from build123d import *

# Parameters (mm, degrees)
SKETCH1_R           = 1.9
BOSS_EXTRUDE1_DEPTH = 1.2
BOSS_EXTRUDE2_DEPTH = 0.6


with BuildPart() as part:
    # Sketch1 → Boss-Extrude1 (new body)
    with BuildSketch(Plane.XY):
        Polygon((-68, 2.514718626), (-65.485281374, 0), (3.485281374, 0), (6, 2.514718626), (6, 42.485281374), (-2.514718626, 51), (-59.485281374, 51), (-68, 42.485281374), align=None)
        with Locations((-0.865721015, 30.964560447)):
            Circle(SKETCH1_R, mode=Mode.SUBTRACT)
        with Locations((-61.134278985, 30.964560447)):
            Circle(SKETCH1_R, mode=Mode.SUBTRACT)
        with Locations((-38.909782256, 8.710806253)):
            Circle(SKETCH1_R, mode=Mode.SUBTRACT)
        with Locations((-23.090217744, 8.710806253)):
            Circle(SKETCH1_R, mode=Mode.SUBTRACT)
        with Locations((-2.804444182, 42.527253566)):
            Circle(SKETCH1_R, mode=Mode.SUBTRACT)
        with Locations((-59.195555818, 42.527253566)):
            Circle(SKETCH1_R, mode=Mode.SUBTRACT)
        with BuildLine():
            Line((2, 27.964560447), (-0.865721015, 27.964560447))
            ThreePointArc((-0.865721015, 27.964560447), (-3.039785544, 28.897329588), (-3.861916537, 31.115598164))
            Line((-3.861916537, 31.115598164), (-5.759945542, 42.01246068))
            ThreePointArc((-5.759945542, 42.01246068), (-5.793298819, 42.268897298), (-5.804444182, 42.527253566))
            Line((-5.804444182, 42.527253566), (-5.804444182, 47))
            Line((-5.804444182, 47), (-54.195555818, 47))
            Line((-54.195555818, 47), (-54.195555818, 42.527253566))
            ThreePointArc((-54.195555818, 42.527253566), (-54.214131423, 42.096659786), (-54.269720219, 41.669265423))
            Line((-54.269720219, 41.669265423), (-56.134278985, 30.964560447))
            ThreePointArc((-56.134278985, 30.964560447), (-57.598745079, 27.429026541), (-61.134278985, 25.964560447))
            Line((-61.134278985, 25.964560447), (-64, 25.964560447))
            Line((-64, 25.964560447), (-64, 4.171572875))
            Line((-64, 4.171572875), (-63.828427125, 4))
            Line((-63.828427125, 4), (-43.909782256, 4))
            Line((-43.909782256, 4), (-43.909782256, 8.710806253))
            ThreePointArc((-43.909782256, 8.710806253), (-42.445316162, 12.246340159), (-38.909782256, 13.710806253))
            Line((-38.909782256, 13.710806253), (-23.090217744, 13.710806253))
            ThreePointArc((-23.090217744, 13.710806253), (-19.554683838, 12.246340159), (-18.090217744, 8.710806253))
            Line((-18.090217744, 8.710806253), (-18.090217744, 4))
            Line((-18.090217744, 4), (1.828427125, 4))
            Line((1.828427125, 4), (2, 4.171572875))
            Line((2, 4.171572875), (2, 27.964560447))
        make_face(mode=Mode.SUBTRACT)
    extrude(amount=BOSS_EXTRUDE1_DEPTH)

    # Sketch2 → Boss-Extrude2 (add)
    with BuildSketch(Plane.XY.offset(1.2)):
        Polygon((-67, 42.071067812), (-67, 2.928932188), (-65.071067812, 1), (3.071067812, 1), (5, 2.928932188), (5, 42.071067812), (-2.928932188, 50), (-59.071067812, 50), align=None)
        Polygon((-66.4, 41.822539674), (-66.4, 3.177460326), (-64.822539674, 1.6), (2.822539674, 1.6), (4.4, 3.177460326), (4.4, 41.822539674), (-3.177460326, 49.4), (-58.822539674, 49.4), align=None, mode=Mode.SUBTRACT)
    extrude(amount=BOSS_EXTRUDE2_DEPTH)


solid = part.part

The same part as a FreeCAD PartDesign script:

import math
import FreeCAD as App
import Part
import Sketcher

V = App.Vector
Q = App.Units.Quantity

doc = App.newDocument("Part")
body = doc.addObject("PartDesign::Body", "Body")

# Sketch on XY plane
sketch1 = doc.addObject("Sketcher::SketchObject", "Sketch")
body.addObject(sketch1)
sketch1.AttachmentSupport = (doc.XY_Plane, [""])
sketch1.MapMode = "FlatFace"
sketch1.addGeometry([
    Part.LineSegment(V(-68, 2.51, 0), V(-65.49, 0, 0)),  # 0
    Part.LineSegment(V(-65.49, 0, 0), V(3.49, 0, 0)),  # 1
    Part.LineSegment(V(3.49, 0, 0), V(6, 2.51, 0)),  # 2
    Part.LineSegment(V(6, 2.51, 0), V(6, 42.49, 0)),  # 3
    Part.LineSegment(V(6, 42.49, 0), V(-2.51, 51, 0)),  # 4
    Part.LineSegment(V(-2.51, 51, 0), V(-59.49, 51, 0)),  # 5
    Part.LineSegment(V(-59.49, 51, 0), V(-68, 42.49, 0)),  # 6
    Part.LineSegment(V(-68, 42.49, 0), V(-68, 2.51, 0)),  # 7
    Part.Circle(V(-38.91, 8.71, 0), V(0, 0, 1), 1.9),  # 8
    Part.Circle(V(-23.09, 8.71, 0), V(0, 0, 1), 1.9),  # 9
    Part.Circle(V(-61.13, 30.96, 0), V(0, 0, 1), 1.9),  # 10
    Part.Circle(V(-59.2, 42.53, 0), V(0, 0, 1), 1.9),  # 11
    Part.LineSegment(V(-0.87, 27.96, 0), V(2, 27.96, 0)),  # 12
    Part.LineSegment(V(2, 27.96, 0), V(2, 4.17, 0)),  # 13
    Part.LineSegment(V(2, 4.17, 0), V(1.83, 4, 0)),  # 14
    Part.LineSegment(V(1.83, 4, 0), V(-18.09, 4, 0)),  # 15
    Part.LineSegment(V(-18.09, 4, 0), V(-18.09, 8.71, 0)),  # 16
    Part.ArcOfCircle(Part.Circle(V(-23.09, 8.71, 0), V(0, 0, 1), 5), math.radians(0), math.radians(90)),  # 17
    Part.LineSegment(V(-23.09, 13.71, 0), V(-38.91, 13.71, 0)),  # 18
    Part.ArcOfCircle(Part.Circle(V(-38.91, 8.71, 0), V(0, 0, 1), 5), math.radians(90), math.radians(180)),  # 19
    Part.LineSegment(V(-43.91, 8.71, 0), V(-43.91, 4, 0)),  # 20
    Part.LineSegment(V(-43.91, 4, 0), V(-63.83, 4, 0)),  # 21
    Part.LineSegment(V(-63.83, 4, 0), V(-64, 4.17, 0)),  # 22
    Part.LineSegment(V(-64, 4.17, 0), V(-64, 25.96, 0)),  # 23
    Part.LineSegment(V(-64, 25.96, 0), V(-61.13, 25.96, 0)),  # 24
    Part.ArcOfCircle(Part.Circle(V(-61.13, 30.96, 0), V(0, 0, 1), 5), math.radians(-90), math.radians(0)),  # 25
    Part.LineSegment(V(-56.13, 30.96, 0), V(-54.27, 41.67, 0)),  # 26
    Part.ArcOfCircle(Part.Circle(V(-59.2, 42.53, 0), V(0, 0, 1), 5), math.radians(-9.88), math.radians(0)),  # 27
    Part.LineSegment(V(-54.2, 42.53, 0), V(-54.2, 47, 0)),  # 28
    Part.LineSegment(V(-54.2, 47, 0), V(-5.8, 47, 0)),  # 29
    Part.LineSegment(V(-5.8, 47, 0), V(-5.8, 42.53, 0)),  # 30
    Part.ArcOfCircle(Part.Circle(V(-2.8, 42.53, 0), V(0, 0, 1), 3), math.radians(180), math.radians(189.88)),  # 31
    Part.LineSegment(V(-5.76, 42.01, 0), V(-3.86, 31.12, 0)),  # 32
    Part.ArcOfCircle(Part.Circle(V(-0.87, 30.96, 0), V(0, 0, 1), 3), math.radians(177), math.radians(270)),  # 33
    Part.Circle(V(-0.87, 30.96, 0), V(0, 0, 1), 1.9),  # 34
    Part.Circle(V(-2.8, 42.53, 0), V(0, 0, 1), 1.9),  # 35
], False)
sketch1.addConstraint([
    Sketcher.Constraint("Coincident", 0, 2, 1, 1),
    Sketcher.Constraint("Coincident", 1, 2, 2, 1),
    Sketcher.Constraint("Coincident", 2, 2, 3, 1),
    Sketcher.Constraint("Coincident", 3, 2, 4, 1),
    Sketcher.Constraint("Coincident", 4, 2, 5, 1),
    Sketcher.Constraint("Coincident", 5, 2, 6, 1),
    Sketcher.Constraint("Coincident", 6, 2, 7, 1),
    Sketcher.Constraint("Coincident", 7, 2, 0, 1),
    Sketcher.Constraint("Coincident", 12, 2, 13, 1),
    Sketcher.Constraint("Coincident", 13, 2, 14, 1),
    Sketcher.Constraint("Coincident", 14, 2, 15, 1),
    Sketcher.Constraint("Coincident", 15, 2, 16, 1),
    Sketcher.Constraint("Tangent", 16, 2, 17, 1),
    Sketcher.Constraint("Tangent", 17, 2, 18, 1),
    Sketcher.Constraint("Tangent", 18, 2, 19, 1),
    Sketcher.Constraint("Tangent", 19, 2, 20, 1),
    Sketcher.Constraint("Coincident", 20, 2, 21, 1),
    Sketcher.Constraint("Coincident", 21, 2, 22, 1),
    Sketcher.Constraint("Coincident", 22, 2, 23, 1),
    Sketcher.Constraint("Coincident", 23, 2, 24, 1),
    Sketcher.Constraint("Tangent", 24, 2, 25, 1),
    Sketcher.Constraint("Coincident", 25, 2, 26, 1),
    Sketcher.Constraint("Tangent", 26, 2, 27, 1),
    Sketcher.Constraint("Tangent", 27, 2, 28, 1),
    Sketcher.Constraint("Coincident", 28, 2, 29, 1),
    Sketcher.Constraint("Coincident", 29, 2, 30, 1),
    Sketcher.Constraint("Tangent", 30, 2, 31, 1),
    Sketcher.Constraint("Tangent", 31, 2, 32, 1),
    Sketcher.Constraint("Coincident", 32, 2, 33, 1),
    Sketcher.Constraint("Tangent", 33, 2, 12, 1),
    Sketcher.Constraint("Horizontal", 1),
    Sketcher.Constraint("Vertical", 3),
    Sketcher.Constraint("Horizontal", 5),
    Sketcher.Constraint("Vertical", 7),
    Sketcher.Constraint("Horizontal", 12),
    Sketcher.Constraint("Vertical", 13),
    Sketcher.Constraint("Horizontal", 15),
    Sketcher.Constraint("Vertical", 16),
    Sketcher.Constraint("Horizontal", 18),
    Sketcher.Constraint("Vertical", 20),
    Sketcher.Constraint("Horizontal", 21),
    Sketcher.Constraint("Vertical", 23),
    Sketcher.Constraint("Horizontal", 24),
    Sketcher.Constraint("Vertical", 28),
    Sketcher.Constraint("Horizontal", 29),
    Sketcher.Constraint("Vertical", 30),
    Sketcher.Constraint("Coincident", 17, 3, 9, 3),
    Sketcher.Constraint("Coincident", 19, 3, 8, 3),
    Sketcher.Constraint("Coincident", 25, 3, 10, 3),
    Sketcher.Constraint("Coincident", 27, 3, 11, 3),
    Sketcher.Constraint("Coincident", 34, 3, 33, 3),
    Sketcher.Constraint("Coincident", 35, 3, 31, 3),
    Sketcher.Constraint("Equal", 8, 9),
    Sketcher.Constraint("Equal", 9, 10),
    Sketcher.Constraint("Equal", 10, 11),
    Sketcher.Constraint("Equal", 17, 19),
    Sketcher.Constraint("Equal", 19, 25),
    Sketcher.Constraint("Equal", 25, 27),
    Sketcher.Constraint("Equal", 31, 33),
    Sketcher.Constraint("Equal", 11, 34),
    Sketcher.Constraint("Equal", 34, 35),
    Sketcher.Constraint("PointOnObject", 0, 2, -1),
    Sketcher.Constraint("Perpendicular", 0, 2),
    Sketcher.Constraint("Perpendicular", 2, 4),
    Sketcher.Constraint("Perpendicular", 4, 6),
    Sketcher.Constraint("Parallel", 6, 14),
    Sketcher.Constraint("Perpendicular", 14, 22),
    Sketcher.Constraint("Horizontal", 27, 3, 31, 3),
    Sketcher.Constraint("Horizontal", 25, 3, 33, 3),
    Sketcher.Constraint("Horizontal", 3, 2, 6, 2),
    Sketcher.Constraint("Horizontal", 2, 2, 7, 2),
    Sketcher.Constraint("Horizontal", 15, 2, 20, 2),
    Sketcher.Constraint("Horizontal", 13, 2, 22, 2),
    Sketcher.Constraint("Horizontal", 34, 3, 25, 2),
    Sketcher.Constraint("Equal", 15, 21),
    Sketcher.Constraint("Equal", 12, 24),
    Sketcher.Constraint("Equal", 0, 2),
    Sketcher.Constraint("Radius", 17, Q("5 mm")),
    Sketcher.Constraint("Radius", 31, Q("3 mm")),
    Sketcher.Constraint("Diameter", 8, Q("3.8 mm")),
    Sketcher.Constraint("DistanceX", -1, 1, 2, 2, Q("6 mm")),
    Sketcher.Constraint("DistanceY", -1, 1, 4, 2, Q("51 mm")),
    Sketcher.Constraint("DistanceX", 6, 2, -1, 1, Q("68 mm")),
    Sketcher.Constraint("DistanceX", -1, 1, 12, 2, Q("2 mm")),
    Sketcher.Constraint("DistanceY", -1, 1, 14, 2, Q("4 mm")),
    Sketcher.Constraint("DistanceX", 22, 2, -1, 1, Q("64 mm")),
    Sketcher.Constraint("DistanceY", -1, 1, 28, 2, Q("47 mm")),
    Sketcher.Constraint("DistanceX", 12, 1, 12, 2, Q("2.865721 mm")),
    Sketcher.Constraint("DistanceX", 29, 1, 29, 2, Q("48.391112 mm")),
    Sketcher.Constraint("DistanceY", -1, 1, 32, 2, Q("31.115598 mm")),
    Sketcher.Constraint("DistanceX", 0, 2, 8, 3, Q("26.575499 mm")),
    Sketcher.Constraint("DistanceX", 5, 2, 8, 3, Q("20.575499 mm")),
    Sketcher.Constraint("DistanceX", 30, 2, 31, 2, Q("0.044499 mm")),
    Sketcher.Constraint("Distance", 0, Q("3.556349 mm")),
    Sketcher.Constraint("Distance", 14, Q("0.242641 mm")),
    Sketcher.Constraint("DistanceY", 13, 2, 13, 1, Q("23.792988 mm")),
    Sketcher.Constraint("DistanceY", 16, 1, 16, 2, Q("4.710806 mm")),
    Sketcher.Constraint("DistanceY", 28, 1, 28, 2, Q("4.472746 mm")),
])
pad1 = doc.addObject("PartDesign::Pad", "Pad")
body.addObject(pad1)
pad1.Profile = sketch1
pad1.Length = 1.2

# Sketch on XY plane
sketch2 = doc.addObject("Sketcher::SketchObject", "Sketch001")
body.addObject(sketch2)
sketch2.AttachmentSupport = (doc.XY_Plane, [""])
sketch2.MapMode = "FlatFace"
sketch2.AttachmentOffset = App.Placement(V(0, 0, 1.2), App.Rotation())
sketch2.addGeometry([
    Part.LineSegment(V(-67, 42.1, 0), V(-67, 2.9, 0)),  # 0
    Part.LineSegment(V(-67, 2.9, 0), V(-65.1, 1, 0)),  # 1
    Part.LineSegment(V(-65.1, 1, 0), V(3.1, 1, 0)),  # 2
    Part.LineSegment(V(3.1, 1, 0), V(5, 2.9, 0)),  # 3
    Part.LineSegment(V(5, 2.9, 0), V(5, 42.1, 0)),  # 4
    Part.LineSegment(V(5, 42.1, 0), V(-2.9, 50, 0)),  # 5
    Part.LineSegment(V(-2.9, 50, 0), V(-59.1, 50, 0)),  # 6
    Part.LineSegment(V(-59.1, 50, 0), V(-67, 42.1, 0)),  # 7
    Part.LineSegment(V(-66.4, 3.2, 0), V(-66.4, 41.8, 0)),  # 8
    Part.LineSegment(V(-66.4, 41.8, 0), V(-58.8, 49.4, 0)),  # 9
    Part.LineSegment(V(-58.8, 49.4, 0), V(-3.2, 49.4, 0)),  # 10
    Part.LineSegment(V(-3.2, 49.4, 0), V(4.4, 41.8, 0)),  # 11
    Part.LineSegment(V(4.4, 41.8, 0), V(4.4, 3.2, 0)),  # 12
    Part.LineSegment(V(4.4, 3.2, 0), V(2.8, 1.6, 0)),  # 13
    Part.LineSegment(V(2.8, 1.6, 0), V(-64.8, 1.6, 0)),  # 14
    Part.LineSegment(V(-64.8, 1.6, 0), V(-66.4, 3.2, 0)),  # 15
], False)
sketch2.addConstraint([
    Sketcher.Constraint("Coincident", 0, 2, 1, 1),
    Sketcher.Constraint("Coincident", 1, 2, 2, 1),
    Sketcher.Constraint("Coincident", 2, 2, 3, 1),
    Sketcher.Constraint("Coincident", 3, 2, 4, 1),
    Sketcher.Constraint("Coincident", 4, 2, 5, 1),
    Sketcher.Constraint("Coincident", 5, 2, 6, 1),
    Sketcher.Constraint("Coincident", 6, 2, 7, 1),
    Sketcher.Constraint("Coincident", 7, 2, 0, 1),
    Sketcher.Constraint("Coincident", 8, 2, 9, 1),
    Sketcher.Constraint("Coincident", 9, 2, 10, 1),
    Sketcher.Constraint("Coincident", 10, 2, 11, 1),
    Sketcher.Constraint("Coincident", 11, 2, 12, 1),
    Sketcher.Constraint("Coincident", 12, 2, 13, 1),
    Sketcher.Constraint("Coincident", 13, 2, 14, 1),
    Sketcher.Constraint("Coincident", 14, 2, 15, 1),
    Sketcher.Constraint("Coincident", 15, 2, 8, 1),
    Sketcher.Constraint("Vertical", 0),
    Sketcher.Constraint("Horizontal", 2),
    Sketcher.Constraint("Vertical", 4),
    Sketcher.Constraint("Horizontal", 6),
    Sketcher.Constraint("Vertical", 8),
    Sketcher.Constraint("Horizontal", 10),
    Sketcher.Constraint("Vertical", 12),
    Sketcher.Constraint("Horizontal", 14),
    Sketcher.Constraint("Perpendicular", 1, 3),
    Sketcher.Constraint("Perpendicular", 3, 5),
    Sketcher.Constraint("Perpendicular", 5, 7),
    Sketcher.Constraint("Parallel", 7, 9),
    Sketcher.Constraint("Perpendicular", 9, 11),
    Sketcher.Constraint("Perpendicular", 11, 13),
    Sketcher.Constraint("Perpendicular", 13, 15),
    Sketcher.Constraint("Horizontal", 0, 2, 3, 2),
    Sketcher.Constraint("Horizontal", 4, 2, 7, 2),
    Sketcher.Constraint("Horizontal", 8, 2, 11, 2),
    Sketcher.Constraint("Horizontal", 12, 2, 15, 2),
    Sketcher.Constraint("Equal", 1, 3),
    Sketcher.Constraint("DistanceX", 0, 2, -1, 1, Q("67 mm")),
    Sketcher.Constraint("DistanceY", -1, 1, 1, 2, Q("1 mm")),
    Sketcher.Constraint("DistanceX", -1, 1, 3, 2, Q("5 mm")),
    Sketcher.Constraint("DistanceY", -1, 1, 5, 2, Q("50 mm")),
    Sketcher.Constraint("DistanceX", 5, 2, 2, 2, Q("6 mm")),
    Sketcher.Constraint("DistanceX", 14, 2, 9, 2, Q("6 mm")),
    Sketcher.Constraint("DistanceX", 8, 2, -1, 1, Q("66.4 mm")),
    Sketcher.Constraint("DistanceY", -1, 1, 9, 2, Q("49.4 mm")),
    Sketcher.Constraint("DistanceX", -1, 1, 11, 2, Q("4.4 mm")),
    Sketcher.Constraint("DistanceY", -1, 1, 13, 2, Q("1.6 mm")),
    Sketcher.Constraint("DistanceX", 10, 1, 10, 2, Q("55.645079 mm")),
    Sketcher.Constraint("DistanceX", 2, 1, 2, 2, Q("68.142136 mm")),
])
pad2 = doc.addObject("PartDesign::Pad", "Pad001")
body.addObject(pad2)
pad2.Profile = sketch2
pad2.Length = 0.6

doc.recompute()
